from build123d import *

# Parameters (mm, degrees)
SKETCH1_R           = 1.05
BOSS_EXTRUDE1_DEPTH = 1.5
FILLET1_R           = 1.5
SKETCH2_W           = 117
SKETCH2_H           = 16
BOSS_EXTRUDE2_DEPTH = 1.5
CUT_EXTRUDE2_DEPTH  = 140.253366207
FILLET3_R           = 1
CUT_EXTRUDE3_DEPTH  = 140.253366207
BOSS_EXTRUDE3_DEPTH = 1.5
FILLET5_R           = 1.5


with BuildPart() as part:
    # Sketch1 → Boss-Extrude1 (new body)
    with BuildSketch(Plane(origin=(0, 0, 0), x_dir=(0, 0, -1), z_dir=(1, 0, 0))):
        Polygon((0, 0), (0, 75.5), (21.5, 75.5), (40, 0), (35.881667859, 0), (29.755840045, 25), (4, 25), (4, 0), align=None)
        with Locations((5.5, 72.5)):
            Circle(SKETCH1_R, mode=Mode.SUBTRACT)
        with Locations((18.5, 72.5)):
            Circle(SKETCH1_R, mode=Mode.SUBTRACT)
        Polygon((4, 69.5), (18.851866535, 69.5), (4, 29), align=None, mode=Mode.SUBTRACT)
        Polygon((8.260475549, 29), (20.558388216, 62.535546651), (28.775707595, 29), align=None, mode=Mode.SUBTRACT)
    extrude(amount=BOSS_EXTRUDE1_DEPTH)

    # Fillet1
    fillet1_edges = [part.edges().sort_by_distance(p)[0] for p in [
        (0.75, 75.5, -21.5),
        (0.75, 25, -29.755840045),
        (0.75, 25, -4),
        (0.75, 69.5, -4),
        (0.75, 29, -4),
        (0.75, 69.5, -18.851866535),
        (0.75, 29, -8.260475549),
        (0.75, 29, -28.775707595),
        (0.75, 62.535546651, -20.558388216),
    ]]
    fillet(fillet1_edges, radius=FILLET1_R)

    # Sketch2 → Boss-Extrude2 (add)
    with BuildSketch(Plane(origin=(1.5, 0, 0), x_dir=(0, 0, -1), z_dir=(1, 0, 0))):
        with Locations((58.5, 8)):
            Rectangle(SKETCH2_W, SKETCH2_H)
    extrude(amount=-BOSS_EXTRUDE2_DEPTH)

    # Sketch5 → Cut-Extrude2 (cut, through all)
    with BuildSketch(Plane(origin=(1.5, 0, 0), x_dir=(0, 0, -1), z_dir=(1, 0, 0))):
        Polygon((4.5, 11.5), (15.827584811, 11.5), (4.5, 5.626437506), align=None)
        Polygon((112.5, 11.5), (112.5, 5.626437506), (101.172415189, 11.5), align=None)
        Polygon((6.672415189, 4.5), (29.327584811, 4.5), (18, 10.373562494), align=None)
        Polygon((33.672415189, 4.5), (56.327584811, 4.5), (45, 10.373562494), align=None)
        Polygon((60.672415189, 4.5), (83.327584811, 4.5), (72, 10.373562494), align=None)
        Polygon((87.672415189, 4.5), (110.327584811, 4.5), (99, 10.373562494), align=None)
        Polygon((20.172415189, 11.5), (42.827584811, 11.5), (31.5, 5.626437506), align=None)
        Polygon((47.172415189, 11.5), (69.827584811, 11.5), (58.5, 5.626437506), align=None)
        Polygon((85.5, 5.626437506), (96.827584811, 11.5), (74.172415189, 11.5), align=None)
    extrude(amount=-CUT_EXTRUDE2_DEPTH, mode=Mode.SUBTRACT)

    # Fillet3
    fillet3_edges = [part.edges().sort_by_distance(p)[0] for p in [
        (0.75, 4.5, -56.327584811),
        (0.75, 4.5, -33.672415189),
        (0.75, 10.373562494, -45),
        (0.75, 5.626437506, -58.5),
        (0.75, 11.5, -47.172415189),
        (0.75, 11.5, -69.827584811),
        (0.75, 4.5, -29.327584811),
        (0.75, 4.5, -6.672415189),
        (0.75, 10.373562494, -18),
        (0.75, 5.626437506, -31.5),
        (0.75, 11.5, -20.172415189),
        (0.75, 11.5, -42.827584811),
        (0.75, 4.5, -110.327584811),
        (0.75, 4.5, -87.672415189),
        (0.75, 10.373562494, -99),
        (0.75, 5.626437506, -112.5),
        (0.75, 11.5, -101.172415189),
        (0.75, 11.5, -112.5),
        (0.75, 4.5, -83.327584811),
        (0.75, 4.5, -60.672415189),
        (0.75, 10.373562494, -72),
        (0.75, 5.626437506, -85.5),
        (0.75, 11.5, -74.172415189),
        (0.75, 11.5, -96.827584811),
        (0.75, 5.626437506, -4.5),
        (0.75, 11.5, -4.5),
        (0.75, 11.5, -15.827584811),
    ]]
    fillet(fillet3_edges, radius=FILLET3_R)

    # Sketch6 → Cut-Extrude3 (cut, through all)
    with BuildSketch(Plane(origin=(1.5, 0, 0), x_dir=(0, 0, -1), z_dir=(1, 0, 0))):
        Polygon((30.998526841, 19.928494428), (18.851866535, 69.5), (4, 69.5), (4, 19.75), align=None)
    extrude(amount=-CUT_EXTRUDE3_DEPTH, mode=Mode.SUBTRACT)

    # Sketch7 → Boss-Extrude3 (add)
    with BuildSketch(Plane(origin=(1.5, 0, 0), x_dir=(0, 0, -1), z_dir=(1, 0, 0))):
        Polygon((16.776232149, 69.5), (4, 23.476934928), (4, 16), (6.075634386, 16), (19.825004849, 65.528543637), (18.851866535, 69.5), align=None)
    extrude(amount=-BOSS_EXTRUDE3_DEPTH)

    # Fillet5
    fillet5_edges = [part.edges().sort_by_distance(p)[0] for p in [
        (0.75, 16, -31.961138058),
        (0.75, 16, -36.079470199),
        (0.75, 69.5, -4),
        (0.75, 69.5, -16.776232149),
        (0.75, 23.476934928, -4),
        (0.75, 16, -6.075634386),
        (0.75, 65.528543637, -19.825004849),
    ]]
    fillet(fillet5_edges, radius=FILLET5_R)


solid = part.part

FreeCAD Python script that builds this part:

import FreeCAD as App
import Part
import Sketcher

V = App.Vector


def edges_at(feature, points):
    """Names of the edges that pass closest to the given points."""
    edges = feature.Shape.Edges
    near = lambda p: min(range(len(edges)), key=lambda i: edges[i].distToShape(Part.Vertex(*p))[0])
    return sorted({f"Edge{near(p) + 1}" for p in points})


def add_polygon(sketch, points):
    """Adds a closed chain of lines whose ends are joined by coincident constraints."""
    first, n = sketch.GeometryCount, len(points)
    for a, b in zip(points, points[1:] + points[:1]):
        sketch.addGeometry(Part.LineSegment(App.Vector(*a, 0), App.Vector(*b, 0)), False)
    for i in range(n):
        sketch.addConstraint(Sketcher.Constraint("Coincident", first + i, 2, first + (i + 1) % n, 1))

doc = App.newDocument("Part")
params = doc.addObject("Spreadsheet::Sheet", "Params")
for row, (alias, value) in enumerate([
    ("sketch1_diameter", "2.1 mm"),
    ("sketch1_width", "25 mm"),
    ("sketch1_height", "4 mm"),
    ("sketch1_width2", "75.5 mm"),
    ("sketch1_width3", "40.5 mm"),
    ("pad1_length", "1.5 mm"),
    ("fillet_radius", "1.5 mm"),
    ("sketch2_width", "16 mm"),
    ("sketch2_height", "117 mm"),
    ("pad2_length", "1.5 mm"),
    ("fillet2_radius", "1 mm"),
    ("sketch4_width", "49.75 mm"),
    ("pad3_length", "1.5 mm"),
    ("fillet3_radius", "1.5 mm"),
], start=1):
    params.set(f"A{row}", alias)
    params.set(f"B{row}", "=" + value)
    params.setAlias(f"B{row}", alias)

body = doc.addObject("PartDesign::Body", "Body")

sketch1 = body.newObject("Sketcher::SketchObject", "Sketch")
sketch1.AttachmentSupport = (doc.getObject("YZ_Plane"), [""])
sketch1.MapMode = "FlatFace"
add_polygon(sketch1, [(75.5, 0), (0, 0), (0, -4), (25, -4), (25, -29.8), (0, -35.9), (0, -40), (75.5, -21.5)])
add_polygon(sketch1, [(29, -8.3), (62.5, -20.6), (29, -28.8)])
add_polygon(sketch1, [(69.5, -4), (69.5, -18.9), (29, -4)])
sketch1.addGeometry(Part.Circle(V(72.5, -18.5, 0), V(0, 0, 1), 1.1), False)
sketch1.addGeometry(Part.Circle(V(72.5, -5.5, 0), V(0, 0, 1), 1.1), False)
sketch1.addConstraint(Sketcher.Constraint("Horizontal", 0))
sketch1.addConstraint(Sketcher.Constraint("Vertical", 1))
sketch1.addConstraint(Sketcher.Constraint("Horizontal", 2))
sketch1.addConstraint(Sketcher.Constraint("Vertical", 3))
sketch1.addConstraint(Sketcher.Constraint("Vertical", 5))
sketch1.addConstraint(Sketcher.Constraint("Vertical", 7))
sketch1.addConstraint(Sketcher.Constraint("Vertical", 10))
sketch1.addConstraint(Sketcher.Constraint("Vertical", 11))
sketch1.addConstraint(Sketcher.Constraint("Horizontal", 13))
sketch1.addConstraint(Sketcher.Constraint("Coincident", 0, 2, -1, 1))
sketch1.addConstraint(Sketcher.Constraint("Equal", 14, 15))
sketch1.addConstraint(Sketcher.Constraint("PointOnObject", 4, 2, -2))
sketch1.addConstraint(Sketcher.Constraint("Parallel", 4, 6))
sketch1.addConstraint(Sketcher.Constraint("Parallel", 6, 9))
sketch1.addConstraint(Sketcher.Constraint("Parallel", 8, 12))
sketch1.addConstraint(Sketcher.Constraint("Horizontal", 2, 2, 12, 2))
sketch1.addConstraint(Sketcher.Constraint("Vertical", 14, 3, 15, 3))
sketch1.addConstraint(Sketcher.Constraint("Vertical", 10, 2, 12, 2))
sketch1.addConstraint(Sketcher.Constraint("Diameter", 14, 2.1))
sketch1.addConstraint(Sketcher.Constraint("DistanceX", 2, 1, 2, 2, 25.0))
sketch1.addConstraint(Sketcher.Constraint("DistanceY", 1, 2, 1, 1, 4.0))
sketch1.addConstraint(Sketcher.Constraint("DistanceX", 0, 2, 0, 1, 75.5))
sketch1.addConstraint(Sketcher.Constraint("DistanceX", 13, 1, 13, 2, 40.5))
sketch1.addConstraint(Sketcher.Constraint("DistanceY", 7, 1, 7, 2, 21.5))
sketch1.addConstraint(Sketcher.Constraint("DistanceY", 5, 2, -1, 1, 40.0))
sketch1.addConstraint(Sketcher.Constraint("DistanceX", -1, 1, 9, 2, 29.0))
sketch1.addConstraint(Sketcher.Constraint("DistanceY", 14, 3, 15, 3, 13.0))
sketch1.addConstraint(Sketcher.Constraint("DistanceX", 14, 3, 6, 2, 3.0))
sketch1.addConstraint(Sketcher.Constraint("DistanceY", 6, 2, 14, 3, 3.0))
sketch1.addConstraint(Sketcher.Constraint("DistanceY", 3, 2, 3, 1, 25.75584))
sketch1.addConstraint(Sketcher.Constraint("Distance", 9, 34.52763))
sketch1.addConstraint(Sketcher.Constraint("DistanceY", 10, 1, 10, 2, 20.515232))
sketch1.addConstraint(Sketcher.Constraint("DistanceY", 8, 2, -1, 1, 20.558388))
sketch1.setExpression("Constraints[32]", "Params.sketch1_diameter")
sketch1.setExpression("Constraints[33]", "Params.sketch1_width")
sketch1.setExpression("Constraints[34]", "Params.sketch1_height")
sketch1.setExpression("Constraints[35]", "Params.sketch1_width2")
sketch1.setExpression("Constraints[36]", "Params.sketch1_width3")
pad1 = body.newObject("PartDesign::Pad", "Pad")
pad1.Profile = sketch1
pad1.setExpression("Length", "Params.pad1_length")
doc.recompute()

fillet = body.newObject("PartDesign::Fillet", "Fillet")
fillet.Base = (pad1, edges_at(pad1, [
    (0.75, 75.5, -21.5),
    (0.75, 25, -29.756),
    (0.75, 25, -4),
    (0.75, 69.5, -4),
    (0.75, 29, -4),
    (0.75, 69.5, -18.852),
    (0.75, 29, -8.26),
    (0.75, 29, -28.776),
    (0.75, 62.536, -20.558),
]))
fillet.setExpression("Radius", "Params.fillet_radius")

sketch2 = body.newObject("Sketcher::SketchObject", "Sketch001")
sketch2.AttachmentSupport = (doc.getObject("YZ_Plane"), [""])
sketch2.MapMode = "FlatFace"
sketch2.AttachmentOffset = App.Placement(V(0, 0, 1.5), App.Rotation())
add_polygon(sketch2, [(16, 0), (0, 0), (0, -117), (16, -117)])
sketch2.addConstraint(Sketcher.Constraint("Horizontal", 0))
sketch2.addConstraint(Sketcher.Constraint("Vertical", 1))
sketch2.addConstraint(Sketcher.Constraint("Horizontal", 2))
sketch2.addConstraint(Sketcher.Constraint("Vertical", 3))
sketch2.addConstraint(Sketcher.Constraint("Coincident", 0, 2, -1, 1))
sketch2.addConstraint(Sketcher.Constraint("DistanceX", 0, 2, 0, 1, 16.0))
sketch2.addConstraint(Sketcher.Constraint("DistanceY", 1, 2, 1, 1, 117.0))
sketch2.setExpression("Constraints[9]", "Params.sketch2_width")
sketch2.setExpression("Constraints[10]", "Params.sketch2_height")
pad2 = body.newObject("PartDesign::Pad", "Pad001")
pad2.Profile = sketch2
pad2.setExpression("Length", "Params.pad2_length")
pad2.Reversed = True

sketch3 = body.newObject("Sketcher::SketchObject", "Sketch002")
sketch3.AttachmentSupport = (doc.getObject("YZ_Plane"), [""])
sketch3.MapMode = "FlatFace"
sketch3.AttachmentOffset = App.Placement(V(0, 0, 1.5), App.Rotation())
add_polygon(sketch3, [(12, -16), (12, -4), (6, -4)])
add_polygon(sketch3, [(6, -112), (12, -112), (12, -101)])
add_polygon(sketch3, [(4, -7), (4, -29), (10, -18)])
add_polygon(sketch3, [(4, -34), (4, -56), (10, -45)])
add_polygon(sketch3, [(4, -61), (4, -83), (10, -72)])
add_polygon(sketch3, [(4, -88), (4, -110), (10, -99)])
add_polygon(sketch3, [(12, -43), (12, -20), (6, -32)])
add_polygon(sketch3, [(12, -70), (12, -47), (6, -58)])
add_polygon(sketch3, [(6, -86), (12, -97), (12, -74)])
sketch3.addConstraint(Sketcher.Constraint("Vertical", 0))
sketch3.addConstraint(Sketcher.Constraint("Horizontal", 1))
sketch3.addConstraint(Sketcher.Constraint("Horizontal", 3))
sketch3.addConstraint(Sketcher.Constraint("Vertical", 4))
sketch3.addConstraint(Sketcher.Constraint("Vertical", 6))
sketch3.addConstraint(Sketcher.Constraint("Vertical", 9))
sketch3.addConstraint(Sketcher.Constraint("Vertical", 12))
sketch3.addConstraint(Sketcher.Constraint("Vertical", 15))
sketch3.addConstraint(Sketcher.Constraint("Vertical", 18))
sketch3.addConstraint(Sketcher.Constraint("Vertical", 21))
sketch3.addConstraint(Sketcher.Constraint("Vertical", 25))
sketch3.addConstraint(Sketcher.Constraint("Parallel", 5, 7))
sketch3.addConstraint(Sketcher.Constraint("Parallel", 2, 8))
sketch3.addConstraint(Sketcher.Constraint("Parallel", 7, 10))
sketch3.addConstraint(Sketcher.Constraint("Parallel", 8, 11))
sketch3.addConstraint(Sketcher.Constraint("Parallel", 10, 13))
sketch3.addConstraint(Sketcher.Constraint("Parallel", 11, 14))
sketch3.addConstraint(Sketcher.Constraint("Parallel", 13, 16))
sketch3.addConstraint(Sketcher.Constraint("Parallel", 14, 17))
sketch3.addConstraint(Sketcher.Constraint("Parallel", 16, 19))
sketch3.addConstraint(Sketcher.Constraint("Parallel", 17, 20))
sketch3.addConstraint(Sketcher.Constraint("Parallel", 19, 22))
sketch3.addConstraint(Sketcher.Constraint("Parallel", 20, 23))
sketch3.addConstraint(Sketcher.Constraint("Parallel", 23, 24))
sketch3.addConstraint(Sketcher.Constraint("Parallel", 22, 26))
sketch3.addConstraint(Sketcher.Constraint("Vertical", 2, 2, 3, 2))
sketch3.addConstraint(Sketcher.Constraint("Vertical", 1, 2, 5, 2))
sketch3.addConstraint(Sketcher.Constraint("Vertical", 8, 2, 9, 2))
sketch3.addConstraint(Sketcher.Constraint("Vertical", 7, 2, 10, 2))
sketch3.addConstraint(Sketcher.Constraint("Vertical", 11, 2, 12, 2))
sketch3.addConstraint(Sketcher.Constraint("Vertical", 10, 2, 13, 2))
sketch3.addConstraint(Sketcher.Constraint("Vertical", 14, 2, 15, 2))
sketch3.addConstraint(Sketcher.Constraint("Vertical", 13, 2, 16, 2))
sketch3.addConstraint(Sketcher.Constraint("Vertical", 4, 2, 18, 2))
sketch3.addConstraint(Sketcher.Constraint("Vertical", 5, 2, 19, 2))
sketch3.addConstraint(Sketcher.Constraint("Vertical", 20, 2, 21, 2))
sketch3.addConstraint(Sketcher.Constraint("Vertical", 19, 2, 22, 2))
sketch3.addConstraint(Sketcher.Constraint("Vertical", 23, 2, 24, 2))
sketch3.addConstraint(Sketcher.Constraint("Vertical", 22, 2, 26, 2))
sketch3.addConstraint(Sketcher.Constraint("Equal", 0, 4))
sketch3.addConstraint(Sketcher.Constraint("Equal", 15, 18))
sketch3.addConstraint(Sketcher.Constraint("DistanceY", 7, 2, -1, 1, 18.0))
sketch3.addConstraint(Sketcher.Constraint("DistanceY", 10, 2, -1, 1, 45.0))
sketch3.addConstraint(Sketcher.Constraint("DistanceY", 13, 2, -1, 1, 72.0))
sketch3.addConstraint(Sketcher.Constraint("DistanceY", 16, 2, -1, 1, 99.0))
sketch3.addConstraint(Sketcher.Constraint("DistanceY", 3, 2, 0, 2, 108.0))
sketch3.addConstraint(Sketcher.Constraint("DistanceX", 6, 2, 2, 2, 7.0))
sketch3.addConstraint(Sketcher.Constraint("DistanceX", -1, 1, 0, 2, 11.5))
sketch3.addConstraint(Sketcher.Constraint("DistanceY", 0, 2, -1, 1, 4.5))
sketch3.addConstraint(Sketcher.Constraint("DistanceY", 19, 2, -1, 1, 31.5))
sketch3.addConstraint(Sketcher.Constraint("DistanceY", 22, 2, -1, 1, 58.5))
sketch3.addConstraint(Sketcher.Constraint("DistanceY", 26, 2, -1, 1, 85.5))
sketch3.addConstraint(Sketcher.Constraint("DistanceY", 6, 2, 6, 1, 22.65517))
sketch3.addConstraint(Sketcher.Constraint("DistanceX", 1, 2, 1, 1, 5.873562))
pocket1 = body.newObject("PartDesign::Pocket", "Pocket")
pocket1.Profile = sketch3
pocket1.Type = "ThroughAll"
doc.recompute()

fillet2 = body.newObject("PartDesign::Fillet", "Fillet001")
fillet2.Base = (pocket1, edges_at(pocket1, [
    (0.75, 4.5, -56.328),
    (0.75, 4.5, -33.672),
    (0.75, 10.374, -45),
    (0.75, 5.626, -58.5),
    (0.75, 11.5, -47.172),
    (0.75, 11.5, -69.828),
    (0.75, 4.5, -29.328),
    (0.75, 4.5, -6.672),
    (0.75, 10.374, -18),
    (0.75, 5.626, -31.5),
    (0.75, 11.5, -20.172),
    (0.75, 11.5, -42.828),
    (0.75, 4.5, -110.328),
    (0.75, 4.5, -87.672),
    (0.75, 10.374, -99),
    (0.75, 5.626, -112.5),
    (0.75, 11.5, -101.172),
    (0.75, 11.5, -112.5),
    (0.75, 4.5, -83.328),
    (0.75, 4.5, -60.672),
    (0.75, 10.374, -72),
    (0.75, 5.626, -85.5),
    (0.75, 11.5, -74.172),
    (0.75, 11.5, -96.828),
    (0.75, 5.626, -4.5),
    (0.75, 11.5, -4.5),
    (0.75, 11.5, -15.828),
]))
fillet2.setExpression("Radius", "Params.fillet2_radius")

sketch4 = body.newObject("Sketcher::SketchObject", "Sketch003")
sketch4.AttachmentSupport = (doc.getObject("YZ_Plane"), [""])
sketch4.MapMode = "FlatFace"
sketch4.AttachmentOffset = App.Placement(V(0, 0, 1.5), App.Rotation())
add_polygon(sketch4, [(20, -31), (70, -19), (70, -4), (20, -4)])
sketch4.addConstraint(Sketcher.Constraint("Vertical", 1))
sketch4.addConstraint(Sketcher.Constraint("Horizontal", 2))
sketch4.addConstraint(Sketcher.Constraint("DistanceY", 1, 2, -1, 1, 4.0))
sketch4.addConstraint(Sketcher.Constraint("DistanceX", 2, 2, 2, 1, 49.75))
sketch4.addConstraint(Sketcher.Constraint("DistanceX", -1, 1, 0, 2, 69.5))
sketch4.addConstraint(Sketcher.Constraint("Distance", 0, 51.037981))
sketch4.addConstraint(Sketcher.Constraint("DistanceY", 1, 1, 1, 2, 14.851867))
sketch4.addConstraint(Sketcher.Constraint("DistanceY", 3, 2, 0, 2, 12.14666))
sketch4.setExpression("Constraints[7]", "Params.sketch4_width")
pocket2 = body.newObject("PartDesign::Pocket", "Pocket001")
pocket2.Profile = sketch4
pocket2.Type = "ThroughAll"

sketch5 = body.newObject("Sketcher::SketchObject", "Sketch004")
sketch5.AttachmentSupport = (doc.getObject("YZ_Plane"), [""])
sketch5.MapMode = "FlatFace"
sketch5.AttachmentOffset = App.Placement(V(0, 0, 1.5), App.Rotation())
add_polygon(sketch5, [(69.5, -16.8), (23.5, -4), (16, -4), (16, -6.1), (65.5, -19.8), (69.5, -18.9)])
sketch5.addConstraint(Sketcher.Constraint("Horizontal", 1))
sketch5.addConstraint(Sketcher.Constraint("Vertical", 2))
sketch5.addConstraint(Sketcher.Constraint("Vertical", 5))
sketch5.addConstraint(Sketcher.Constraint("Parallel", 0, 3))
sketch5.addConstraint(Sketcher.Constraint("Equal", 2, 5))
sketch5.addConstraint(Sketcher.Constraint("DistanceY", 0, 2, -1, 1, 4.0))
sketch5.addConstraint(Sketcher.Constraint("DistanceX", -1, 1, 1, 2, 16.0))
sketch5.addConstraint(Sketcher.Constraint("DistanceX", -1, 1, 4, 2, 69.5))
sketch5.addConstraint(Sketcher.Constraint("Distance", 0, 47.763528))
sketch5.addConstraint(Sketcher.Constraint("DistanceX", 1, 2, 1, 1, 7.476935))
sketch5.addConstraint(Sketcher.Constraint("DistanceY", 2, 2, 2, 1, 2.075634))
sketch5.addConstraint(Sketcher.Constraint("DistanceX", 0, 2, 3, 2, 42.051609))
pad3 = body.newObject("PartDesign::Pad", "Pad002")
pad3.Profile = sketch5
pad3.setExpression("Length", "Params.pad3_length")
pad3.Reversed = True
doc.recompute()

fillet3 = body.newObject("PartDesign::Fillet", "Fillet002")
fillet3.Base = (pad3, edges_at(pad3, [
    (0.75, 16, -31.961),
    (0.75, 16, -36.079),
    (0.75, 69.5, -4),
    (0.75, 69.5, -16.776),
    (0.75, 23.477, -4),
    (0.75, 16, -6.076),
    (0.75, 65.529, -19.825),
]))
fillet3.setExpression("Radius", "Params.fillet3_radius")

doc.recompute()
